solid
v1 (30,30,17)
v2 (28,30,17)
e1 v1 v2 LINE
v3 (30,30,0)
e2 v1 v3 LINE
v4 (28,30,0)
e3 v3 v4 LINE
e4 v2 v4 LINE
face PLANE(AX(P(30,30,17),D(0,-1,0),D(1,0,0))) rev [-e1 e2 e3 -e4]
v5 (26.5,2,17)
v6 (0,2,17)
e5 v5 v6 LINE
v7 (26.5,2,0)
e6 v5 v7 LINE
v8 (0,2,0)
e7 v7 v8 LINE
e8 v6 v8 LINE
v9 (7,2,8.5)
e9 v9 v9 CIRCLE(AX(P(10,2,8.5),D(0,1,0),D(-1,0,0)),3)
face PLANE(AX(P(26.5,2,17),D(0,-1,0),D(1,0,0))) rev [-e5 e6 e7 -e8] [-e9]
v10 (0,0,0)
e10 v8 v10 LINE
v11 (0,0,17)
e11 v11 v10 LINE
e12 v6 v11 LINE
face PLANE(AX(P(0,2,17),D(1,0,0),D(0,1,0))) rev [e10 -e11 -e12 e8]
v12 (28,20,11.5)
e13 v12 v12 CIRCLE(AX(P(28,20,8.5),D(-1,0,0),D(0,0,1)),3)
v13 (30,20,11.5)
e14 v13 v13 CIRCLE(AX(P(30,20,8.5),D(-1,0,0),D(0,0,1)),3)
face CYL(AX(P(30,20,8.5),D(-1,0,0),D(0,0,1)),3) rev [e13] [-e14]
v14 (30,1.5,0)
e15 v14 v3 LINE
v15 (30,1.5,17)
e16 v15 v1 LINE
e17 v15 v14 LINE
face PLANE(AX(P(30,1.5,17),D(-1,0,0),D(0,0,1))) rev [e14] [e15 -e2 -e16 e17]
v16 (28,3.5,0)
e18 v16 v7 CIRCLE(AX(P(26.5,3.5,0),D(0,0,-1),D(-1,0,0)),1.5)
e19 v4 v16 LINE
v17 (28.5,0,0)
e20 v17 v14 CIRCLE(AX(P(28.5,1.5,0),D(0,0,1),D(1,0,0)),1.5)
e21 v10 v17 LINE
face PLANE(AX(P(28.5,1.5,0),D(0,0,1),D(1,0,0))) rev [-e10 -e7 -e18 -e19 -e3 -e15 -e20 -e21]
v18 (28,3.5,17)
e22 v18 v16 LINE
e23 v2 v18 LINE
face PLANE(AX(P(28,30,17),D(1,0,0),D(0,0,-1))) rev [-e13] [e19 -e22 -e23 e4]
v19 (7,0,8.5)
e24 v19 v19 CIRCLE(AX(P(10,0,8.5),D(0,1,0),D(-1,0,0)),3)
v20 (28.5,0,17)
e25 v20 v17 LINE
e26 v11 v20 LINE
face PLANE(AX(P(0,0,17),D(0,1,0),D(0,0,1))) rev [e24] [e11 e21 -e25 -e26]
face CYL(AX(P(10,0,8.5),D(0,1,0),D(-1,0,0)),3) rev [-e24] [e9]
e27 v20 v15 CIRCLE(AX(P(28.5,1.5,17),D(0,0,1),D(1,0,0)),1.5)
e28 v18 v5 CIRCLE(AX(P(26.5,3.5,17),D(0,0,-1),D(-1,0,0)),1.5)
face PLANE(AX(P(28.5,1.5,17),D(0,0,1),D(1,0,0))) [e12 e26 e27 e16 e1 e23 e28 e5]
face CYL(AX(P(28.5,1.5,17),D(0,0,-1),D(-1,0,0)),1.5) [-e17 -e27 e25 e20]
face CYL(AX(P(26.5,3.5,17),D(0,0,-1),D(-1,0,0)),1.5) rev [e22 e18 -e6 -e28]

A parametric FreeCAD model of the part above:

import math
import FreeCAD as App
import Part
import Sketcher
from FreeCAD import Vector

doc = App.newDocument("Part")
body = doc.addObject("PartDesign::Body", "Body")

sketch1 = body.newObject("Sketcher::SketchObject", "Sketch")
sketch1.AttachmentSupport = (doc.getObject("XY_Plane"), [""])
sketch1.MapMode = "FlatFace"
sketch1.addGeometry(Part.LineSegment(Vector(0, 0, 0), Vector(28.5, 0, 0)), False)
sketch1.addGeometry(Part.ArcOfCircle(Part.Circle(Vector(28.5, 1.5, 0), Vector(0, 0, 1), 1.5), math.radians(-90), math.radians(0)), False)
sketch1.addGeometry(Part.LineSegment(Vector(30, 1.5, 0), Vector(30, 30, 0)), False)
sketch1.addGeometry(Part.LineSegment(Vector(30, 30, 0), Vector(28, 30, 0)), False)
sketch1.addGeometry(Part.LineSegment(Vector(28, 30, 0), Vector(28, 3.5, 0)), False)
sketch1.addGeometry(Part.ArcOfCircle(Part.Circle(Vector(26.5, 3.5, 0), Vector(0, 0, 1), 1.5), math.radians(-90), math.radians(0)), False)
sketch1.addGeometry(Part.LineSegment(Vector(26.5, 2, 0), Vector(0, 2, 0)), False)
sketch1.addGeometry(Part.LineSegment(Vector(0, 2, 0), Vector(0, 0, 0)), False)
sketch1.addConstraint(Sketcher.Constraint("Tangent", 0, 2, 1, 1))
sketch1.addConstraint(Sketcher.Constraint("Tangent", 1, 2, 2, 1))
sketch1.addConstraint(Sketcher.Constraint("Coincident", 2, 2, 3, 1))
sketch1.addConstraint(Sketcher.Constraint("Coincident", 3, 2, 4, 1))
sketch1.addConstraint(Sketcher.Constraint("Tangent", 4, 2, 5, 2))
sketch1.addConstraint(Sketcher.Constraint("Tangent", 5, 1, 6, 1))
sketch1.addConstraint(Sketcher.Constraint("Coincident", 6, 2, 7, 1))
sketch1.addConstraint(Sketcher.Constraint("Coincident", 7, 2, 0, 1))
sketch1.addConstraint(Sketcher.Constraint("Horizontal", 0))
sketch1.addConstraint(Sketcher.Constraint("Vertical", 2))
sketch1.addConstraint(Sketcher.Constraint("Horizontal", 3))
sketch1.addConstraint(Sketcher.Constraint("Vertical", 4))
sketch1.addConstraint(Sketcher.Constraint("Horizontal", 6))
sketch1.addConstraint(Sketcher.Constraint("Vertical", 7))
sketch1.addConstraint(Sketcher.Constraint("Coincident", 7, 2, -1, 1))
sketch1.addConstraint(Sketcher.Constraint("Equal", 1, 5))
sketch1.addConstraint(Sketcher.Constraint("Equal", 0, 2))
sketch1.addConstraint(Sketcher.Constraint("Equal", 6, 4))
sketch1.addConstraint(Sketcher.Constraint("Radius", 1, 1.5))
sketch1.addConstraint(Sketcher.Constraint("DistanceX", 3, 2, 3, 1, 2.0))
sketch1.addConstraint(Sketcher.Constraint("DistanceX", 0, 1, 0, 2, 28.5))
pad1 = body.newObject("PartDesign::Pad", "Pad")
pad1.Profile = sketch1
pad1.Length = 17

sketch2 = body.newObject("Sketcher::SketchObject", "Sketch001")
sketch2.AttachmentSupport = (doc.getObject("YZ_Plane"), [""])
sketch2.MapMode = "FlatFace"
sketch2.AttachmentOffset = App.Placement(Vector(0, 0, 28), App.Rotation())
sketch2.addGeometry(Part.Circle(Vector(20, 8.5, 0), Vector(0, 0, 1), 3), False)
sketch2.addConstraint(Sketcher.Constraint("Diameter", 0, 6.0))
sketch2.addConstraint(Sketcher.Constraint("DistanceX", -1, 1, 0, 3, 20.0))
sketch2.addConstraint(Sketcher.Constraint("DistanceY", -1, 1, 0, 3, 8.5))
pocket1 = body.newObject("PartDesign::Pocket", "Pocket")
pocket1.Profile = sketch2
pocket1.Type = "ThroughAll"
pocket1.Reversed = True

sketch3 = body.newObject("Sketcher::SketchObject", "Sketch002")
sketch3.AttachmentSupport = (doc.getObject("XZ_Plane"), [""])
sketch3.MapMode = "FlatFace"
sketch3.AttachmentOffset = App.Placement(Vector(0, 0, -2), App.Rotation())
sketch3.addGeometry(Part.Circle(Vector(10, 8.5, 0), Vector(0, 0, 1), 3), False)
sketch3.addConstraint(Sketcher.Constraint("Diameter", 0, 6.0))
sketch3.addConstraint(Sketcher.Constraint("DistanceX", -1, 1, 0, 3, 10.0))
sketch3.addConstraint(Sketcher.Constraint("DistanceY", -1, 1, 0, 3, 8.5))
pocket2 = body.newObject("PartDesign::Pocket", "Pocket001")
pocket2.Profile = sketch3
pocket2.Type = "ThroughAll"
pocket2.Reversed = True

doc.recompute()
